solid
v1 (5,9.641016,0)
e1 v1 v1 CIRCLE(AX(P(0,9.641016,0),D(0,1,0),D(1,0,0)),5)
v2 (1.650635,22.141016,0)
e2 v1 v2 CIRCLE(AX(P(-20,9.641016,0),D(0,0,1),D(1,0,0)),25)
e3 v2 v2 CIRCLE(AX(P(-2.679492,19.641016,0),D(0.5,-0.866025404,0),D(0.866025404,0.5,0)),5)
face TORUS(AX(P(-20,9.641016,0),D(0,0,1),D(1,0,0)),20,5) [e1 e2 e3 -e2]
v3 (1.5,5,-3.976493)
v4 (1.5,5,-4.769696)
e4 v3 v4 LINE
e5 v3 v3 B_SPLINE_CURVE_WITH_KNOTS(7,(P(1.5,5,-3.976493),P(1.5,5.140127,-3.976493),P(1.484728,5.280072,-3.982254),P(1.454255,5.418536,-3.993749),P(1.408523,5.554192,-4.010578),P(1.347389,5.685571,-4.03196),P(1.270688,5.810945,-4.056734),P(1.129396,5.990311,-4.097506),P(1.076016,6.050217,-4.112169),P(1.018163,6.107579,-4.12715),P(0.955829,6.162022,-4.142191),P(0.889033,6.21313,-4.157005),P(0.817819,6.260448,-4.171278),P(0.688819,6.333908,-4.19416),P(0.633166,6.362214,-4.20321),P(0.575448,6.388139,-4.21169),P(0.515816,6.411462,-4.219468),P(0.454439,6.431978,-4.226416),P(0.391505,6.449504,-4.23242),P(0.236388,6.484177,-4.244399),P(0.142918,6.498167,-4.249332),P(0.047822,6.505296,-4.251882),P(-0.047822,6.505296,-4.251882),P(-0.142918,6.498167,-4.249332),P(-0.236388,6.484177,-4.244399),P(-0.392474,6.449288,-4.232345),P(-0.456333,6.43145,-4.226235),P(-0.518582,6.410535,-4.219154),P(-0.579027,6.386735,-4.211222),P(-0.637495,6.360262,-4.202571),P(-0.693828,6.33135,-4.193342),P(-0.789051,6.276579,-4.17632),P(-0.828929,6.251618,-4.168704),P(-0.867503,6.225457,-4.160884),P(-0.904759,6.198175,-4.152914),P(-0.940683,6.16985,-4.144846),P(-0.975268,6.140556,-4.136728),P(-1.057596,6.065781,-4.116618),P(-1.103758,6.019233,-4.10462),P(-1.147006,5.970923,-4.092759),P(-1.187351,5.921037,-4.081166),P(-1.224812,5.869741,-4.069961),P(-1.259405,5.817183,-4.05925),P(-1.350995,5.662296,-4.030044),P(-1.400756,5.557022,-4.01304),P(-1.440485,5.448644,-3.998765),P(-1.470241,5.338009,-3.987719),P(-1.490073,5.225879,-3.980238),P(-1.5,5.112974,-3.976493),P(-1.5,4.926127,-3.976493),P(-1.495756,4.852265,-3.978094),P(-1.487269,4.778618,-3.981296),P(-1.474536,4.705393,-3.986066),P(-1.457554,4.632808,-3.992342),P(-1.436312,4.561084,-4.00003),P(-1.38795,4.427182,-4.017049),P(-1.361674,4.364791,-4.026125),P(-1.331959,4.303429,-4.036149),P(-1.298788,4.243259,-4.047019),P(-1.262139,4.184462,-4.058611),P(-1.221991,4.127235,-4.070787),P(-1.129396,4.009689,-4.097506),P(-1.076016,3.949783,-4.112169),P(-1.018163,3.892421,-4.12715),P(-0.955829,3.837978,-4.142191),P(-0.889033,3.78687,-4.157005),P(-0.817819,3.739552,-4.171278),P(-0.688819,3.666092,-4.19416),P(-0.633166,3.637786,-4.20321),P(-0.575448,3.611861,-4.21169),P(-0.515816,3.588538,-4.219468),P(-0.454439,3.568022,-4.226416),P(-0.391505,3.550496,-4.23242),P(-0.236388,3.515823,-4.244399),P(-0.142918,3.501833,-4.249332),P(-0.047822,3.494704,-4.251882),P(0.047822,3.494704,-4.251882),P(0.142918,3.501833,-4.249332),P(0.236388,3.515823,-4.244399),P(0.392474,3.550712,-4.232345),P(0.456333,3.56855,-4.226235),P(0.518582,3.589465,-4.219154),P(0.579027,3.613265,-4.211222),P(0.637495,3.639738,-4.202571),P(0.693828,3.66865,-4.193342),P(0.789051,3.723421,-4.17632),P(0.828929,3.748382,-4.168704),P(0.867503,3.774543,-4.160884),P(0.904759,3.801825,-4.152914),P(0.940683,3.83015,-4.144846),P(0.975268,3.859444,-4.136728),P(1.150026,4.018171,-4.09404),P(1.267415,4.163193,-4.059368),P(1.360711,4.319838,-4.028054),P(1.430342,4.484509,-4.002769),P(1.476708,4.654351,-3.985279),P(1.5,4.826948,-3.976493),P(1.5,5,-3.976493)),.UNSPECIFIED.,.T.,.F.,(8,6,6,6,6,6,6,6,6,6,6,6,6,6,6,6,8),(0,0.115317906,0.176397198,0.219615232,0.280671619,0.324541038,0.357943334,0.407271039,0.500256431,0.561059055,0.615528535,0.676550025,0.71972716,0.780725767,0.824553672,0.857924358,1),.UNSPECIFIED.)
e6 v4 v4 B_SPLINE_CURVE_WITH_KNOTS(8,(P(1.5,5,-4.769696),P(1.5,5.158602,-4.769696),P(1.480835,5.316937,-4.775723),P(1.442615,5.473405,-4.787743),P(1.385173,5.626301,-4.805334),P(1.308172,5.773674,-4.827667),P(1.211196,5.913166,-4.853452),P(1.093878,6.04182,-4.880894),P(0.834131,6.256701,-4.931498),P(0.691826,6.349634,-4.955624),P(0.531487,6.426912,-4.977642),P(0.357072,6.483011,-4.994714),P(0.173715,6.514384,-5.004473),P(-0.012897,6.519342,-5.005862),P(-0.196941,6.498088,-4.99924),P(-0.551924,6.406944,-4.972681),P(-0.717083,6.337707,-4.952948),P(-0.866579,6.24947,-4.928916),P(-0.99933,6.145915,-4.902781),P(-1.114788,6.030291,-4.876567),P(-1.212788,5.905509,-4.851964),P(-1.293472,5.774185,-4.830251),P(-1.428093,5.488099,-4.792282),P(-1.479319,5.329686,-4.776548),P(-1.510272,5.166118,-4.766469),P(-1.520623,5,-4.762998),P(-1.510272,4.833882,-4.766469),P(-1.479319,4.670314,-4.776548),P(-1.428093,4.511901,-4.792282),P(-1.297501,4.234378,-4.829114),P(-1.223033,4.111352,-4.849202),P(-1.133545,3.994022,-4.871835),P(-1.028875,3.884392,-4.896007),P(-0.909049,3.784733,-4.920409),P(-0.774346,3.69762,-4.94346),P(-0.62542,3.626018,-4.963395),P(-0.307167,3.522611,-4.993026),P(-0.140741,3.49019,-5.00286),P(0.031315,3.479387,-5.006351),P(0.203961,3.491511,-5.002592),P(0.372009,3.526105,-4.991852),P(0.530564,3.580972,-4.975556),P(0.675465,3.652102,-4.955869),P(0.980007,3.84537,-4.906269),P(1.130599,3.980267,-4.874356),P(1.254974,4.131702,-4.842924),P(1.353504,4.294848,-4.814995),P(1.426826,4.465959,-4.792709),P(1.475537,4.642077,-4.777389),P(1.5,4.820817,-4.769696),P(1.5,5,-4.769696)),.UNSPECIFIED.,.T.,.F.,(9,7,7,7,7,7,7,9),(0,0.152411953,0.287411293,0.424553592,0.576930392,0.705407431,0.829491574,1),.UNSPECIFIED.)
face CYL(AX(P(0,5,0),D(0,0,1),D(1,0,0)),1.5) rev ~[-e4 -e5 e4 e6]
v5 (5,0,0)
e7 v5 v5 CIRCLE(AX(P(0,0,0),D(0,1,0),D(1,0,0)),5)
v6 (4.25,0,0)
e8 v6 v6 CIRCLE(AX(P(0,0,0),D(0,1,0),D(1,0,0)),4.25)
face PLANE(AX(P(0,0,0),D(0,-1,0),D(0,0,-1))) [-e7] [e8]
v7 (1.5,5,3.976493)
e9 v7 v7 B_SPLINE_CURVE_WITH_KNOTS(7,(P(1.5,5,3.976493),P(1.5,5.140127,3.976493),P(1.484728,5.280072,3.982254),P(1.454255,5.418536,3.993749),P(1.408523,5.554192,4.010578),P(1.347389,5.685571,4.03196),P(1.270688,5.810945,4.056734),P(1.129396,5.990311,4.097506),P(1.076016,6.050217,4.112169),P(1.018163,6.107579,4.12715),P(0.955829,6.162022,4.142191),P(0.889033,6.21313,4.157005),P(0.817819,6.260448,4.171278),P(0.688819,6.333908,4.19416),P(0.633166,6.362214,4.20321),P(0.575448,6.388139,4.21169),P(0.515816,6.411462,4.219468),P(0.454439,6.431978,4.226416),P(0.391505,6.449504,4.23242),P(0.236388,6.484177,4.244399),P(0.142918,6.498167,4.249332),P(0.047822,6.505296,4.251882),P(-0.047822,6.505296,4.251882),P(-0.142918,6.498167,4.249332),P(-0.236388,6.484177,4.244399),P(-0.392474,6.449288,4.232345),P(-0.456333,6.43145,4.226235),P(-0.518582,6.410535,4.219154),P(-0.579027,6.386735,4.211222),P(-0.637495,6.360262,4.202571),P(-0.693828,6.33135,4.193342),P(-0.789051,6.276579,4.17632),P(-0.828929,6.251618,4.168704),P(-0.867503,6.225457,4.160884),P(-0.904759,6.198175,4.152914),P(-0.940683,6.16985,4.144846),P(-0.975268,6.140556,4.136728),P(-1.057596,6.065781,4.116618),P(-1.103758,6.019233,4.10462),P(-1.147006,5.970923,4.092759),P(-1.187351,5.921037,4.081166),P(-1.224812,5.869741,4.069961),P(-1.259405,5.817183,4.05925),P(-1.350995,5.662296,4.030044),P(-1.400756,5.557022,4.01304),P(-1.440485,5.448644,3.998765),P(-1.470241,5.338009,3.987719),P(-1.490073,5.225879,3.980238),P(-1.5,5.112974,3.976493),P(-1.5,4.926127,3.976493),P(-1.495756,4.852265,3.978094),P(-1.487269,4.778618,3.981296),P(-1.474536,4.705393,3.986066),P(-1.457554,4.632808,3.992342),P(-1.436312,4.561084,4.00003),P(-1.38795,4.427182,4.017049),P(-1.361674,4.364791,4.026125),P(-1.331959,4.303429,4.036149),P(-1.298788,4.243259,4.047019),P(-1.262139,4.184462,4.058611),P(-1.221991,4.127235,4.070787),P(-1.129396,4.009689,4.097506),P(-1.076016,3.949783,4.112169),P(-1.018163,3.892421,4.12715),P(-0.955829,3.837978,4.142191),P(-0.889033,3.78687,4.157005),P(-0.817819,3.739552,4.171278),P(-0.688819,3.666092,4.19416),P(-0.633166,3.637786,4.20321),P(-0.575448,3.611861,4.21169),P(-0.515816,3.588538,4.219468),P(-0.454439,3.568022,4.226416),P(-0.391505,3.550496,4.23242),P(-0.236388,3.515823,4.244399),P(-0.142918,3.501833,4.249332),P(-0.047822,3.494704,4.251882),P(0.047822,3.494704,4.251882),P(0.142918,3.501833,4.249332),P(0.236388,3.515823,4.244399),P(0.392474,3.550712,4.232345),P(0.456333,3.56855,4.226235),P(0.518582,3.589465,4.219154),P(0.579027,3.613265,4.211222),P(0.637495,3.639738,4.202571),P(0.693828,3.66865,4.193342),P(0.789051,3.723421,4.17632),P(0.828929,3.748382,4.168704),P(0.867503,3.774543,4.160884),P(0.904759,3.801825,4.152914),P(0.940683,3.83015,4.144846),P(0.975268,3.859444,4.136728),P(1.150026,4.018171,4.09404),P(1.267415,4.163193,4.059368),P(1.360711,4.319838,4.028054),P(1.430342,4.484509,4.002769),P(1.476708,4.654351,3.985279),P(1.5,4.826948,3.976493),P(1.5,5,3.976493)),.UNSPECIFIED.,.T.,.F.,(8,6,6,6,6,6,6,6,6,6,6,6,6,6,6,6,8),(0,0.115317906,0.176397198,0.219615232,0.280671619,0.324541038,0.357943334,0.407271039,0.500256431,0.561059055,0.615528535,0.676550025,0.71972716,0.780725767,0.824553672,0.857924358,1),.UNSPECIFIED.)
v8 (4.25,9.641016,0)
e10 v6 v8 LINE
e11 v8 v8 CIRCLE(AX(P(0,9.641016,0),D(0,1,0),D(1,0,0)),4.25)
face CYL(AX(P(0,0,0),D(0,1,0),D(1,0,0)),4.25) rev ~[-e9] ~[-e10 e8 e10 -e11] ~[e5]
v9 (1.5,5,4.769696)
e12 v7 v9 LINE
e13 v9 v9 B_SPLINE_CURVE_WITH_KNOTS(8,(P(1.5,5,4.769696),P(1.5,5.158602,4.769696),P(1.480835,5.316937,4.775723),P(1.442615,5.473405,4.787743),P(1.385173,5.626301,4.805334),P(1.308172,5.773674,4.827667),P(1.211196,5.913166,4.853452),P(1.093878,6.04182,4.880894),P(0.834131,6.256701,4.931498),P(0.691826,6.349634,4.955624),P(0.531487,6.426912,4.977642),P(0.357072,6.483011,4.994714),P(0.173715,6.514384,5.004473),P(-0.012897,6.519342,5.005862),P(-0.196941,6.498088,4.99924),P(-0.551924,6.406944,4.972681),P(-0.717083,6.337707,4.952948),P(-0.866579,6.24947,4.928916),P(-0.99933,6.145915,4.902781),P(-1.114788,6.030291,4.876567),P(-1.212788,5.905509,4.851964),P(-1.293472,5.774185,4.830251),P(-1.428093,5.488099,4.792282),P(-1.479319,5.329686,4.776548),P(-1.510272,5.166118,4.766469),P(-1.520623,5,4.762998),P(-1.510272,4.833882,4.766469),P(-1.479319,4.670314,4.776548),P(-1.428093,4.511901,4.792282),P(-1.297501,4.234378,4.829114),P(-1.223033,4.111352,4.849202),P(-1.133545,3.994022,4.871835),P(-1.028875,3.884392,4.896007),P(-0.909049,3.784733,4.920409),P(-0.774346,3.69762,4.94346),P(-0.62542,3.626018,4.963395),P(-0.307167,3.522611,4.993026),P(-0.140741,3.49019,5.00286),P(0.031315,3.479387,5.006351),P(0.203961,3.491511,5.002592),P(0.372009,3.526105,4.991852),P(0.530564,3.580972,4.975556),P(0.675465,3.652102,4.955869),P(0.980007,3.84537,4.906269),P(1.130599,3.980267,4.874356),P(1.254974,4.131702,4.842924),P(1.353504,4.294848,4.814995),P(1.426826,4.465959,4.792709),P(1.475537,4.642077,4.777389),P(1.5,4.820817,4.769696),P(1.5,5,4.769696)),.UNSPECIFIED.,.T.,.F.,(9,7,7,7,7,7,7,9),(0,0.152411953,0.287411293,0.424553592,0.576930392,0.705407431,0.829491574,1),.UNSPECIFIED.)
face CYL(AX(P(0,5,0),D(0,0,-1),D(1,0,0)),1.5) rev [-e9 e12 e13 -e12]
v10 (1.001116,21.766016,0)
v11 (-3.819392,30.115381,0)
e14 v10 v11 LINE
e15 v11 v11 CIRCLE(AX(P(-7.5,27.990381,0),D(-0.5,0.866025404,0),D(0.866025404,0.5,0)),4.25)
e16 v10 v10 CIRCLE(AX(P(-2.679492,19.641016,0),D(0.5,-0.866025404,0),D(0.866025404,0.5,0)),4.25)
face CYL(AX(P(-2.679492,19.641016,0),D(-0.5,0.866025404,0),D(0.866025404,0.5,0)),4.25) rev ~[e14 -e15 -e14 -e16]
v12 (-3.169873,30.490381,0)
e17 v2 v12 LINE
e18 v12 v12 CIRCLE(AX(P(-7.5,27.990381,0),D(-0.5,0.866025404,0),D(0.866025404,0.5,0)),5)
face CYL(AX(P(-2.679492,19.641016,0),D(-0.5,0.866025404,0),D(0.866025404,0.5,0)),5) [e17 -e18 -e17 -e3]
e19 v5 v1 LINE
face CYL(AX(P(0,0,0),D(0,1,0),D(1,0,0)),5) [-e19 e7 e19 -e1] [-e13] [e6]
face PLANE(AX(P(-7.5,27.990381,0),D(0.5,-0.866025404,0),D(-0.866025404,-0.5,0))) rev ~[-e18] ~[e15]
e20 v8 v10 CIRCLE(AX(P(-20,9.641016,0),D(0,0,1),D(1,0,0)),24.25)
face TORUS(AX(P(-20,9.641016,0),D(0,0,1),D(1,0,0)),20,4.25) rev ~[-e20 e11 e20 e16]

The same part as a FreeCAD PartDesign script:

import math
import FreeCAD as App
import Part
import Sketcher

V = App.Vector
Q = App.Units.Quantity

doc = App.newDocument("Part")
body = doc.addObject("PartDesign::Body", "Body")

# Sketch on XZ plane
sketch1 = body.newObject("Sketcher::SketchObject", "Sketch")
sketch1.AttachmentSupport = (doc.getObject("XZ_Plane"), [""])
sketch1.MapMode = "FlatFace"
sketch1.addGeometry(Part.Circle(V(0, 0, 0), V(0, 0, 1), 5), False)
sketch1.addGeometry(Part.Circle(V(0, 0, 0), V(0, 0, 1), 4.2), False)
sketch1.addConstraint(Sketcher.Constraint("Coincident", 0, 3, -1, 1))
sketch1.addConstraint(Sketcher.Constraint("Coincident", 1, 3, -1, 1))
sketch1.addConstraint(Sketcher.Constraint("Diameter", 0, 10.0))
sketch1.addConstraint(Sketcher.Constraint("Diameter", 1, 8.5))

# Sketch on XY plane
sketch2 = body.newObject("Sketcher::SketchObject", "Sketch001")
sketch2.AttachmentSupport = (doc.getObject("XY_Plane"), [""])
sketch2.MapMode = "FlatFace"
sketch2.addGeometry(Part.LineSegment(V(0, 0, 0), V(0, 10, 0)), False)
sketch2.addGeometry(Part.ArcOfCircle(Part.Circle(V(-20, 10, 0), V(0, 0, 1), 20), math.radians(0), math.radians(30)), False)
sketch2.addGeometry(Part.LineSegment(V(-3, 20, 0), V(-8, 28, 0)), False)
sketch2.addConstraint(Sketcher.Constraint("Tangent", 0, 2, 1, 1))
sketch2.addConstraint(Sketcher.Constraint("Tangent", 1, 2, 2, 1))
sketch2.addConstraint(Sketcher.Constraint("Vertical", 0))
sketch2.addConstraint(Sketcher.Constraint("Coincident", 0, 1, -1, 1))
sketch2.addConstraint(Sketcher.Constraint("Radius", 1, 20.0))
sketch2.addConstraint(Sketcher.Constraint("Angle", 2, Q("120 deg")))
sketch2.addConstraint(Sketcher.Constraint("DistanceX", 2, 2, -1, 1, 7.5))
sketch2.addConstraint(Sketcher.Constraint("DistanceY", 0, 1, 0, 2, 9.641016))
doc.recompute()

additivepipe = body.newObject("PartDesign::AdditivePipe", "AdditivePipe")
additivepipe.Profile = sketch1
additivepipe.Spine = (sketch2, ["Edge1", "Edge2", "Edge3"])

# Sketch on XY plane
sketch3 = body.newObject("Sketcher::SketchObject", "Sketch002")
sketch3.AttachmentSupport = (doc.getObject("XY_Plane"), [""])
sketch3.MapMode = "FlatFace"
sketch3.addGeometry(Part.Circle(V(0, 5, 0), V(0, 0, 1), 1.5), False)
sketch3.addConstraint(Sketcher.Constraint("PointOnObject", 0, 3, -2))
sketch3.addConstraint(Sketcher.Constraint("Diameter", 0, 3.0))
sketch3.addConstraint(Sketcher.Constraint("DistanceY", -1, 1, 0, 3, 5.0))
pocket1 = body.newObject("PartDesign::Pocket", "Pocket")
pocket1.Profile = sketch3
pocket1.Type = "ThroughAll"
pocket1.Midplane = True

doc.recompute()
